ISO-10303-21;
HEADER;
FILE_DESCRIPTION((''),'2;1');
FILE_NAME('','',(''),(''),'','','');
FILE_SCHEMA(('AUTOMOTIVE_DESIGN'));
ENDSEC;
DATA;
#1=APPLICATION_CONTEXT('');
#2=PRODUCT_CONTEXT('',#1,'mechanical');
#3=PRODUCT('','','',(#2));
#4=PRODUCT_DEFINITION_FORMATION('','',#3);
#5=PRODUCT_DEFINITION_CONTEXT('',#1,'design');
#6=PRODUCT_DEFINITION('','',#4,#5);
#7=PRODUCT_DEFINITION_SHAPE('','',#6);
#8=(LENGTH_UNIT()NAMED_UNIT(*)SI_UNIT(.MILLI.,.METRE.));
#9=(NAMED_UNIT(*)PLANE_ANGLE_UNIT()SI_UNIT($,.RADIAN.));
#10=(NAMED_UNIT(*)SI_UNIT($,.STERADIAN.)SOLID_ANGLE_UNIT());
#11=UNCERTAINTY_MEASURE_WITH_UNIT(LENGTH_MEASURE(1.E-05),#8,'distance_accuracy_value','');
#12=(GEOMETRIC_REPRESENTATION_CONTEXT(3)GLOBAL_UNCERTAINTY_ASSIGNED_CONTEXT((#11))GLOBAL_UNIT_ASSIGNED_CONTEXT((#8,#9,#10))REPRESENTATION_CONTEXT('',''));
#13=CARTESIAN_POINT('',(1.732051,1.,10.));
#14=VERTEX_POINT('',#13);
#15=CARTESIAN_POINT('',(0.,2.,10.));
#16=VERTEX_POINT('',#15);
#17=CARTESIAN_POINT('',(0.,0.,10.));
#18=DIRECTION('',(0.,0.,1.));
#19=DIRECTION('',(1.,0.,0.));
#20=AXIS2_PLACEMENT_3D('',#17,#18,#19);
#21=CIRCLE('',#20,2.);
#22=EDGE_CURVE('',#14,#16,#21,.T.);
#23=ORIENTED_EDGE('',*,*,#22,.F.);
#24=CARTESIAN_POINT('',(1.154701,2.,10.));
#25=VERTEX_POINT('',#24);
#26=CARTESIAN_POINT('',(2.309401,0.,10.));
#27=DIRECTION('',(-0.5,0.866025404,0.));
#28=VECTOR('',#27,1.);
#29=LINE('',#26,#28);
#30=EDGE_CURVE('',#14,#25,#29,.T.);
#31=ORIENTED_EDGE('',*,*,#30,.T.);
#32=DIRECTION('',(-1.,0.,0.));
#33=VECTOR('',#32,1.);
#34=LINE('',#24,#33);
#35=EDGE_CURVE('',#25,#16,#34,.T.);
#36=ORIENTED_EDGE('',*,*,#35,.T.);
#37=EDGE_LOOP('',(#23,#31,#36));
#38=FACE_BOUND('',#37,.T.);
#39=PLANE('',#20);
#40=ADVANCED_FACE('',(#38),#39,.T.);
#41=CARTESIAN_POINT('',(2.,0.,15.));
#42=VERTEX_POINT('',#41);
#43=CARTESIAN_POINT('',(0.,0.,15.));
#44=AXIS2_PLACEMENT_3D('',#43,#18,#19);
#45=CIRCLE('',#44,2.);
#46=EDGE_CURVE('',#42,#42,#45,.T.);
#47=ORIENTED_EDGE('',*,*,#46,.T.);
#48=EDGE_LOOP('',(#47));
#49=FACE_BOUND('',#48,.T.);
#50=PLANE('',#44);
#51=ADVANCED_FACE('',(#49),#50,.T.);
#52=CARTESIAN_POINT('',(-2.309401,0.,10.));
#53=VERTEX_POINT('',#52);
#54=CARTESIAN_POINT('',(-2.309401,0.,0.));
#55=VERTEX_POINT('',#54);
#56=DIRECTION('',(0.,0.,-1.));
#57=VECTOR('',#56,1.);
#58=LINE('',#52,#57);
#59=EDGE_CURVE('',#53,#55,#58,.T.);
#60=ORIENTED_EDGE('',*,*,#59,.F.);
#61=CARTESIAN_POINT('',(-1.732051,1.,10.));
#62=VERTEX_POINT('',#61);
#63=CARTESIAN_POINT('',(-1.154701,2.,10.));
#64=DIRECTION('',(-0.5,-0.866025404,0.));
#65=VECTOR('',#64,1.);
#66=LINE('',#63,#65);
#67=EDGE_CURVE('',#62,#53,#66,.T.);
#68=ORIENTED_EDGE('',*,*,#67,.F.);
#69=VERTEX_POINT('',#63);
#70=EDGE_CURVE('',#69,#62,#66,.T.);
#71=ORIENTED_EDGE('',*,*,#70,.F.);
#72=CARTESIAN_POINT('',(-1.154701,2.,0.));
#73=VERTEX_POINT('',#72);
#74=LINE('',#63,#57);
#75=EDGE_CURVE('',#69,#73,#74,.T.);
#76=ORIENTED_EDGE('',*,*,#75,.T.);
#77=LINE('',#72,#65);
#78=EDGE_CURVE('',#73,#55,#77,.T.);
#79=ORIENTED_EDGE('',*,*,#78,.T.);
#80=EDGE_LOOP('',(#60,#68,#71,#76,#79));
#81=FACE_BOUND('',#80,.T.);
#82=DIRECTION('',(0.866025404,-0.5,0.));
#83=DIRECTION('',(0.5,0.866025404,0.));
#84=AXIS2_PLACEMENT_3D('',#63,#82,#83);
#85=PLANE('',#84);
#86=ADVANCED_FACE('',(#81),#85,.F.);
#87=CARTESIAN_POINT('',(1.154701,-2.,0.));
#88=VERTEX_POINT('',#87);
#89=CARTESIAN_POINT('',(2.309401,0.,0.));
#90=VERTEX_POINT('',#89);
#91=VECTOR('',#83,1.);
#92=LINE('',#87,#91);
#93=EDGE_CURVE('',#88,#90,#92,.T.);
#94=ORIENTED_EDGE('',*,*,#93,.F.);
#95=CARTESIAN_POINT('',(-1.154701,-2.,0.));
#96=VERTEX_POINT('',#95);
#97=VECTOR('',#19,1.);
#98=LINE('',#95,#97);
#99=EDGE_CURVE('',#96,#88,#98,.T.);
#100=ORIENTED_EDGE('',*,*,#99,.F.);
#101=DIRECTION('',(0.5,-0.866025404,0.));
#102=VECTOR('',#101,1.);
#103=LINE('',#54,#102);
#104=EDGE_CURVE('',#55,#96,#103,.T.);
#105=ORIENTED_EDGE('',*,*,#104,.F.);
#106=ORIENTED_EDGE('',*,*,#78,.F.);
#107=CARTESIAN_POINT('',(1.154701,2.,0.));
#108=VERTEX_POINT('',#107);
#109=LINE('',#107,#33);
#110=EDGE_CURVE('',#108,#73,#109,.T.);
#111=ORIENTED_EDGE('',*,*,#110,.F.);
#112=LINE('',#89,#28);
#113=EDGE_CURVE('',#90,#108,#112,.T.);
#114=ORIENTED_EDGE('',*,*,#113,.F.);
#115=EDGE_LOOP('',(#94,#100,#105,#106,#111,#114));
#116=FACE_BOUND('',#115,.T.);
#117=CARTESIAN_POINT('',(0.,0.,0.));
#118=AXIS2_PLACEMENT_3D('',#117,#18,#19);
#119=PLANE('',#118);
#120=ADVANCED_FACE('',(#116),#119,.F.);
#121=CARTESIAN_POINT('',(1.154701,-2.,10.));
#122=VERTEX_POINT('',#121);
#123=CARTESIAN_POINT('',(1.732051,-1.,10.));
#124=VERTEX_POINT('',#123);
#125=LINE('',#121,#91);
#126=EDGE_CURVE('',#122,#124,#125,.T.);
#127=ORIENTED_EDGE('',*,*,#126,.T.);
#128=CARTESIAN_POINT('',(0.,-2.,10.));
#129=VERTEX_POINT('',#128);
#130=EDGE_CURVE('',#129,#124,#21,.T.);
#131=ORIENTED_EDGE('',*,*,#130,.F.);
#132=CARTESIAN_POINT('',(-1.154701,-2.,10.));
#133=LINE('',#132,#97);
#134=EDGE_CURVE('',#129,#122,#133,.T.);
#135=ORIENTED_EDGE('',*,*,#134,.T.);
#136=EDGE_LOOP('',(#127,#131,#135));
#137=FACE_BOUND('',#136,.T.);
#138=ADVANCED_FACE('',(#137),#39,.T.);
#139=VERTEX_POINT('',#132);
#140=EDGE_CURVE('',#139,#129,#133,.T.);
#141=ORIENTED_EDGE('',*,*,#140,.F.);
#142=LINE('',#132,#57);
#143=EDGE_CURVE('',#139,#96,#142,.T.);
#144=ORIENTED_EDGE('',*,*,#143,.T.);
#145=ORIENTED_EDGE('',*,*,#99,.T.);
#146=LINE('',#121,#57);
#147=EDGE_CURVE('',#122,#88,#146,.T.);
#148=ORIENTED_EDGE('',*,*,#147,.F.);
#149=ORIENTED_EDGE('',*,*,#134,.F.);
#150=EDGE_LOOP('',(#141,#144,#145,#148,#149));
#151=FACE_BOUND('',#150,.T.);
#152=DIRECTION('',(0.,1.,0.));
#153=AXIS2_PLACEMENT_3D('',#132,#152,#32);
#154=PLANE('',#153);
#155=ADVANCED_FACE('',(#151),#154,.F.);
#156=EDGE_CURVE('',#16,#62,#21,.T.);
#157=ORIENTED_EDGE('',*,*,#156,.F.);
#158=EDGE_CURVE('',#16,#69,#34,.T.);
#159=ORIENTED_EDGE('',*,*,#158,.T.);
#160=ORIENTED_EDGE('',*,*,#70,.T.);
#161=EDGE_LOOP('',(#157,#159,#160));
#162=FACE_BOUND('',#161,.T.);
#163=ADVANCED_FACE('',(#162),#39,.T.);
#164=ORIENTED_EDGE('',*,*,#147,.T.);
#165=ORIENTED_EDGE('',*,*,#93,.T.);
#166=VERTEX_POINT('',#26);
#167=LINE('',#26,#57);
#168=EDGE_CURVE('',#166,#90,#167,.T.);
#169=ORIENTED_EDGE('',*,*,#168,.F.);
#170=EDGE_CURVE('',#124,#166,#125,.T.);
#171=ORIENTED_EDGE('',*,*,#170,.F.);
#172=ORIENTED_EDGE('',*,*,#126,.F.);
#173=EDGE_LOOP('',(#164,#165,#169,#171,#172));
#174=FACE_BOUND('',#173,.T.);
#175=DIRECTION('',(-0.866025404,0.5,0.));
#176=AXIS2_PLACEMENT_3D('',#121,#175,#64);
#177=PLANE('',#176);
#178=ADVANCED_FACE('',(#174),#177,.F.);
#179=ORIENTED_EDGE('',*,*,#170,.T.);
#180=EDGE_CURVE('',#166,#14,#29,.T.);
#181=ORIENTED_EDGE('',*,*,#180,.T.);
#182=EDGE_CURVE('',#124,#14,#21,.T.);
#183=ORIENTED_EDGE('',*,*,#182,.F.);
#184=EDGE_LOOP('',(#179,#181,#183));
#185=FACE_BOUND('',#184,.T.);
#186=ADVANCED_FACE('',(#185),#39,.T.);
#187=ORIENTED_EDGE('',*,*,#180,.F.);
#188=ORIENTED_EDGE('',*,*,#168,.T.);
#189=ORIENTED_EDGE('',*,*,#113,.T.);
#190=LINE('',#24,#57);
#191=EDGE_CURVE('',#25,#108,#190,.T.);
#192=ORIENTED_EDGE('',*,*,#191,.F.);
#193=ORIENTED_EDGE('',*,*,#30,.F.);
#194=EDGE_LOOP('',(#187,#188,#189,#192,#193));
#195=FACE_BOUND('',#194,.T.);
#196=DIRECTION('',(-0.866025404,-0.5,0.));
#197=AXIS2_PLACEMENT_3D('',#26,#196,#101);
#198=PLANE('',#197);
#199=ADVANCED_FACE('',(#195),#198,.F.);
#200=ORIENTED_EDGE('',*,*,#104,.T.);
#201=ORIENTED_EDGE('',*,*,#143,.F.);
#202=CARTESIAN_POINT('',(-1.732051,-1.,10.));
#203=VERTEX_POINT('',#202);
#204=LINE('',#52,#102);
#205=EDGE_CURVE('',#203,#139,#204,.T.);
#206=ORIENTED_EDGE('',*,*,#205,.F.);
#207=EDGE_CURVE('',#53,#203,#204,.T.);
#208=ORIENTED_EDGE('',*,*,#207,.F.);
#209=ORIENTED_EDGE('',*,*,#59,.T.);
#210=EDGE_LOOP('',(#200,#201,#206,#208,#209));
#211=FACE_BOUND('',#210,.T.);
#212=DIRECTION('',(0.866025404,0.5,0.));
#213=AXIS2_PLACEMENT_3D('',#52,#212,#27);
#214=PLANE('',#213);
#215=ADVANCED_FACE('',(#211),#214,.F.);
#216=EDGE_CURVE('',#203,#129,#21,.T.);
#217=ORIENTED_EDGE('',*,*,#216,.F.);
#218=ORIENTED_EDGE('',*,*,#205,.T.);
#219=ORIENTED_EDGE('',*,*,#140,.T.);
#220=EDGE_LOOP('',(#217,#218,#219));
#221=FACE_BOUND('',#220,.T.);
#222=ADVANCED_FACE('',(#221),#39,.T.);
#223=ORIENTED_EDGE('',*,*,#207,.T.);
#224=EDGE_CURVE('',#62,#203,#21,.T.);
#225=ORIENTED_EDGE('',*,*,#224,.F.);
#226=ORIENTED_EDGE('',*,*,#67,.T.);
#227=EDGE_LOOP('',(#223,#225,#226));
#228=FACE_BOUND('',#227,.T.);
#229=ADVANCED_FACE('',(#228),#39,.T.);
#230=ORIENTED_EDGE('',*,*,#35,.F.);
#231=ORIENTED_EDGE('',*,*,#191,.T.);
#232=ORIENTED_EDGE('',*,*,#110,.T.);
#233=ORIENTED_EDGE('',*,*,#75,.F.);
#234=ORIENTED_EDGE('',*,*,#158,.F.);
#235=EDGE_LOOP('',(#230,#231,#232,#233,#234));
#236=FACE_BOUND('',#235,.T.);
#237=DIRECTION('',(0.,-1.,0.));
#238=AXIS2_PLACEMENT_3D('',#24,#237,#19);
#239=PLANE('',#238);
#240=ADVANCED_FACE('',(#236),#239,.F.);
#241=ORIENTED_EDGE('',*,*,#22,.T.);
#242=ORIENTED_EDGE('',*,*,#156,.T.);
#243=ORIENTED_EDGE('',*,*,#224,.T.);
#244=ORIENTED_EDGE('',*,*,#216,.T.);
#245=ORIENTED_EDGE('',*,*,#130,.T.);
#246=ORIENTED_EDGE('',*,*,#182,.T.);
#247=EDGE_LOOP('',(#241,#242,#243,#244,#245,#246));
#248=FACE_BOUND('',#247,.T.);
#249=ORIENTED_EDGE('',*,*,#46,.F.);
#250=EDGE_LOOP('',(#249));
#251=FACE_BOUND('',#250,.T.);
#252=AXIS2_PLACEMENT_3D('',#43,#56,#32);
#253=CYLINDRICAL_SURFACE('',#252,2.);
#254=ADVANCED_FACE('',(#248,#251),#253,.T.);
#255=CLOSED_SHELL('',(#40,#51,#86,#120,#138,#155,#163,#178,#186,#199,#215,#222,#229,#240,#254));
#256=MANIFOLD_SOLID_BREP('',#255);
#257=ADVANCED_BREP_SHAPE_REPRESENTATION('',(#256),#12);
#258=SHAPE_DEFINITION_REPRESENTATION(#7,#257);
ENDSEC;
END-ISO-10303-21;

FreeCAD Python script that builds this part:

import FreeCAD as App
import Part
import Sketcher
from FreeCAD import Vector
Q = App.Units.Quantity


def add_polygon(sketch, points):
    """Adds a closed chain of lines whose ends are joined by coincident constraints."""
    first, n = sketch.GeometryCount, len(points)
    for a, b in zip(points, points[1:] + points[:1]):
        sketch.addGeometry(Part.LineSegment(App.Vector(*a, 0), App.Vector(*b, 0)), False)
    for i in range(n):
        sketch.addConstraint(Sketcher.Constraint("Coincident", first + i, 2, first + (i + 1) % n, 1))

doc = App.newDocument("Part")
body = doc.addObject("PartDesign::Body", "Body")

# Sketch on XY plane
sketch1 = body.newObject("Sketcher::SketchObject", "Sketch")
sketch1.AttachmentSupport = (doc.getObject("XY_Plane"), [""])
sketch1.MapMode = "FlatFace"
add_polygon(sketch1, [(-1.2, -2), (1.2, -2), (2.3, 0), (1.2, 2), (-1.2, 2), (-2.3, 0)])  # lines 0-5
sketch1.addConstraint(Sketcher.Constraint("Horizontal", 0))
sketch1.addConstraint(Sketcher.Constraint("Horizontal", 3))
sketch1.addConstraint(Sketcher.Constraint("Symmetric", 0, 2, 3, 2, -1, 1))
sketch1.addConstraint(Sketcher.Constraint("Symmetric", 1, 2, 4, 2, -1, 1))
sketch1.addConstraint(Sketcher.Constraint("PointOnObject", 1, 2, -1))
sketch1.addConstraint(Sketcher.Constraint("Parallel", 2, 5))
sketch1.addConstraint(Sketcher.Constraint("Vertical", 0, 2, 2, 2))
sketch1.addConstraint(Sketcher.Constraint("Angle", 1, Q("60 deg")))
sketch1.addConstraint(Sketcher.Constraint("DistanceY", 0, 2, -1, 1, Q("2 mm")))
sketch1.addConstraint(Sketcher.Constraint("DistanceX", 0, 1, 0, 2, Q("2.309401 mm")))
pad1 = body.newObject("PartDesign::Pad", "Pad")
pad1.Profile = sketch1
pad1.Length = 10

# Sketch on XY plane
sketch2 = body.newObject("Sketcher::SketchObject", "Sketch001")
sketch2.AttachmentSupport = (doc.getObject("XY_Plane"), [""])
sketch2.MapMode = "FlatFace"
sketch2.AttachmentOffset = App.Placement(Vector(0, 0, 10), App.Rotation())
sketch2.addGeometry(Part.Circle(Vector(0, 0, 0), Vector(0, 0, 1), 2), False)
sketch2.addConstraint(Sketcher.Constraint("Coincident", 0, 3, -1, 1))
sketch2.addConstraint(Sketcher.Constraint("Diameter", 0, Q("4 mm")))
pad2 = body.newObject("PartDesign::Pad", "Pad001")
pad2.Profile = sketch2
pad2.Length = 5

doc.recompute()
